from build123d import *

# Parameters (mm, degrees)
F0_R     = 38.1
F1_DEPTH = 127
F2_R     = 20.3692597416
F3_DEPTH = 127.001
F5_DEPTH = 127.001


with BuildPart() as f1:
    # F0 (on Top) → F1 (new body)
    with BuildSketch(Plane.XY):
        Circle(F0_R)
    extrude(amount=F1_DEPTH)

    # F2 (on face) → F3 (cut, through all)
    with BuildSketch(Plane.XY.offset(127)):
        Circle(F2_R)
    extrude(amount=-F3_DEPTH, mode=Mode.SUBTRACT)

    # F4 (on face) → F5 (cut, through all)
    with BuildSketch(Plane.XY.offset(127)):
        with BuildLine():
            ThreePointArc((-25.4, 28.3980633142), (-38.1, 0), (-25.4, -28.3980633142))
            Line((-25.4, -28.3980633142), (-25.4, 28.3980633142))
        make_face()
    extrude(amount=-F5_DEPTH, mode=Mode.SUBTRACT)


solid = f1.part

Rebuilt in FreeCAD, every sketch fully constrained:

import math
import FreeCAD as App
import Part
import Sketcher
from FreeCAD import Vector
Q = App.Units.Quantity

doc = App.newDocument("Part")
params = doc.addObject("Spreadsheet::Sheet", "Params")
for row, (alias, value) in enumerate([
    ("sketch1_diameter", "3 in"),
    ("pad1_length", "5 in"),
    ("sketch3_radius", "1.5 in"),
], start=1):
    params.set(f"A{row}", alias)
    params.set(f"B{row}", "=" + value)
    params.setAlias(f"B{row}", alias)

body = doc.addObject("PartDesign::Body", "Body")

sketch1 = doc.addObject("Sketcher::SketchObject", "Sketch")
body.addObject(sketch1)
sketch1.AttachmentSupport = (doc.XY_Plane, [""])
sketch1.MapMode = "FlatFace"
sketch1.addGeometry(Part.Circle(Vector(0, 0, 0), Vector(0, 0, 1), 38), False)
sketch1.addConstraint(Sketcher.Constraint("Coincident", 0, 3, -1, 1))
sketch1.addConstraint(Sketcher.Constraint("Diameter", 0, Q("3 in")))
sketch1.setExpression("Constraints[1]", "Params.sketch1_diameter")
pad1 = doc.addObject("PartDesign::Pad", "Pad")
body.addObject(pad1)
pad1.Profile = sketch1
pad1.setExpression("Length", "Params.pad1_length")

sketch2 = doc.addObject("Sketcher::SketchObject", "Sketch001")
body.addObject(sketch2)
sketch2.AttachmentSupport = (doc.XY_Plane, [""])
sketch2.MapMode = "FlatFace"
sketch2.AttachmentOffset = App.Placement(Vector(0, 0, 5 * 25.4), App.Rotation())
sketch2.addGeometry(Part.Circle(Vector(0, 0, 0), Vector(0, 0, 1), 20), False)
sketch2.addConstraint(Sketcher.Constraint("Coincident", 0, 3, -1, 1))
sketch2.addConstraint(Sketcher.Constraint("Diameter", 0, Q("40.738519 mm")))
pocket1 = doc.addObject("PartDesign::Pocket", "Pocket")
body.addObject(pocket1)
pocket1.Profile = sketch2
pocket1.Type = "ThroughAll"

sketch3 = doc.addObject("Sketcher::SketchObject", "Sketch002")
body.addObject(sketch3)
sketch3.AttachmentSupport = (doc.XY_Plane, [""])
sketch3.MapMode = "FlatFace"
sketch3.AttachmentOffset = App.Placement(Vector(0, 0, 5 * 25.4), App.Rotation())
sketch3.addGeometry(Part.ArcOfCircle(Part.Circle(Vector(0, 0, 0), Vector(0, 0, 1), 38), math.radians(132), math.radians(228)), False)
sketch3.addGeometry(Part.LineSegment(Vector(-25, -28, 0), Vector(-25, 28, 0)), False)
sketch3.addConstraint(Sketcher.Constraint("Coincident", 0, 1, 1, 2))
sketch3.addConstraint(Sketcher.Constraint("Coincident", 1, 1, 0, 2))
sketch3.addConstraint(Sketcher.Constraint("Vertical", 1))
sketch3.addConstraint(Sketcher.Constraint("Coincident", 0, 3, -1, 1))
sketch3.addConstraint(Sketcher.Constraint("Radius", 0, Q("1.5 in")))
sketch3.addConstraint(Sketcher.Constraint("DistanceX", 0, 1, -1, 1, Q("1 in")))
sketch3.setExpression("Constraints[4]", "Params.sketch3_radius")
pocket2 = doc.addObject("PartDesign::Pocket", "Pocket001")
body.addObject(pocket2)
pocket2.Profile = sketch3
pocket2.Type = "ThroughAll"

doc.recompute()
